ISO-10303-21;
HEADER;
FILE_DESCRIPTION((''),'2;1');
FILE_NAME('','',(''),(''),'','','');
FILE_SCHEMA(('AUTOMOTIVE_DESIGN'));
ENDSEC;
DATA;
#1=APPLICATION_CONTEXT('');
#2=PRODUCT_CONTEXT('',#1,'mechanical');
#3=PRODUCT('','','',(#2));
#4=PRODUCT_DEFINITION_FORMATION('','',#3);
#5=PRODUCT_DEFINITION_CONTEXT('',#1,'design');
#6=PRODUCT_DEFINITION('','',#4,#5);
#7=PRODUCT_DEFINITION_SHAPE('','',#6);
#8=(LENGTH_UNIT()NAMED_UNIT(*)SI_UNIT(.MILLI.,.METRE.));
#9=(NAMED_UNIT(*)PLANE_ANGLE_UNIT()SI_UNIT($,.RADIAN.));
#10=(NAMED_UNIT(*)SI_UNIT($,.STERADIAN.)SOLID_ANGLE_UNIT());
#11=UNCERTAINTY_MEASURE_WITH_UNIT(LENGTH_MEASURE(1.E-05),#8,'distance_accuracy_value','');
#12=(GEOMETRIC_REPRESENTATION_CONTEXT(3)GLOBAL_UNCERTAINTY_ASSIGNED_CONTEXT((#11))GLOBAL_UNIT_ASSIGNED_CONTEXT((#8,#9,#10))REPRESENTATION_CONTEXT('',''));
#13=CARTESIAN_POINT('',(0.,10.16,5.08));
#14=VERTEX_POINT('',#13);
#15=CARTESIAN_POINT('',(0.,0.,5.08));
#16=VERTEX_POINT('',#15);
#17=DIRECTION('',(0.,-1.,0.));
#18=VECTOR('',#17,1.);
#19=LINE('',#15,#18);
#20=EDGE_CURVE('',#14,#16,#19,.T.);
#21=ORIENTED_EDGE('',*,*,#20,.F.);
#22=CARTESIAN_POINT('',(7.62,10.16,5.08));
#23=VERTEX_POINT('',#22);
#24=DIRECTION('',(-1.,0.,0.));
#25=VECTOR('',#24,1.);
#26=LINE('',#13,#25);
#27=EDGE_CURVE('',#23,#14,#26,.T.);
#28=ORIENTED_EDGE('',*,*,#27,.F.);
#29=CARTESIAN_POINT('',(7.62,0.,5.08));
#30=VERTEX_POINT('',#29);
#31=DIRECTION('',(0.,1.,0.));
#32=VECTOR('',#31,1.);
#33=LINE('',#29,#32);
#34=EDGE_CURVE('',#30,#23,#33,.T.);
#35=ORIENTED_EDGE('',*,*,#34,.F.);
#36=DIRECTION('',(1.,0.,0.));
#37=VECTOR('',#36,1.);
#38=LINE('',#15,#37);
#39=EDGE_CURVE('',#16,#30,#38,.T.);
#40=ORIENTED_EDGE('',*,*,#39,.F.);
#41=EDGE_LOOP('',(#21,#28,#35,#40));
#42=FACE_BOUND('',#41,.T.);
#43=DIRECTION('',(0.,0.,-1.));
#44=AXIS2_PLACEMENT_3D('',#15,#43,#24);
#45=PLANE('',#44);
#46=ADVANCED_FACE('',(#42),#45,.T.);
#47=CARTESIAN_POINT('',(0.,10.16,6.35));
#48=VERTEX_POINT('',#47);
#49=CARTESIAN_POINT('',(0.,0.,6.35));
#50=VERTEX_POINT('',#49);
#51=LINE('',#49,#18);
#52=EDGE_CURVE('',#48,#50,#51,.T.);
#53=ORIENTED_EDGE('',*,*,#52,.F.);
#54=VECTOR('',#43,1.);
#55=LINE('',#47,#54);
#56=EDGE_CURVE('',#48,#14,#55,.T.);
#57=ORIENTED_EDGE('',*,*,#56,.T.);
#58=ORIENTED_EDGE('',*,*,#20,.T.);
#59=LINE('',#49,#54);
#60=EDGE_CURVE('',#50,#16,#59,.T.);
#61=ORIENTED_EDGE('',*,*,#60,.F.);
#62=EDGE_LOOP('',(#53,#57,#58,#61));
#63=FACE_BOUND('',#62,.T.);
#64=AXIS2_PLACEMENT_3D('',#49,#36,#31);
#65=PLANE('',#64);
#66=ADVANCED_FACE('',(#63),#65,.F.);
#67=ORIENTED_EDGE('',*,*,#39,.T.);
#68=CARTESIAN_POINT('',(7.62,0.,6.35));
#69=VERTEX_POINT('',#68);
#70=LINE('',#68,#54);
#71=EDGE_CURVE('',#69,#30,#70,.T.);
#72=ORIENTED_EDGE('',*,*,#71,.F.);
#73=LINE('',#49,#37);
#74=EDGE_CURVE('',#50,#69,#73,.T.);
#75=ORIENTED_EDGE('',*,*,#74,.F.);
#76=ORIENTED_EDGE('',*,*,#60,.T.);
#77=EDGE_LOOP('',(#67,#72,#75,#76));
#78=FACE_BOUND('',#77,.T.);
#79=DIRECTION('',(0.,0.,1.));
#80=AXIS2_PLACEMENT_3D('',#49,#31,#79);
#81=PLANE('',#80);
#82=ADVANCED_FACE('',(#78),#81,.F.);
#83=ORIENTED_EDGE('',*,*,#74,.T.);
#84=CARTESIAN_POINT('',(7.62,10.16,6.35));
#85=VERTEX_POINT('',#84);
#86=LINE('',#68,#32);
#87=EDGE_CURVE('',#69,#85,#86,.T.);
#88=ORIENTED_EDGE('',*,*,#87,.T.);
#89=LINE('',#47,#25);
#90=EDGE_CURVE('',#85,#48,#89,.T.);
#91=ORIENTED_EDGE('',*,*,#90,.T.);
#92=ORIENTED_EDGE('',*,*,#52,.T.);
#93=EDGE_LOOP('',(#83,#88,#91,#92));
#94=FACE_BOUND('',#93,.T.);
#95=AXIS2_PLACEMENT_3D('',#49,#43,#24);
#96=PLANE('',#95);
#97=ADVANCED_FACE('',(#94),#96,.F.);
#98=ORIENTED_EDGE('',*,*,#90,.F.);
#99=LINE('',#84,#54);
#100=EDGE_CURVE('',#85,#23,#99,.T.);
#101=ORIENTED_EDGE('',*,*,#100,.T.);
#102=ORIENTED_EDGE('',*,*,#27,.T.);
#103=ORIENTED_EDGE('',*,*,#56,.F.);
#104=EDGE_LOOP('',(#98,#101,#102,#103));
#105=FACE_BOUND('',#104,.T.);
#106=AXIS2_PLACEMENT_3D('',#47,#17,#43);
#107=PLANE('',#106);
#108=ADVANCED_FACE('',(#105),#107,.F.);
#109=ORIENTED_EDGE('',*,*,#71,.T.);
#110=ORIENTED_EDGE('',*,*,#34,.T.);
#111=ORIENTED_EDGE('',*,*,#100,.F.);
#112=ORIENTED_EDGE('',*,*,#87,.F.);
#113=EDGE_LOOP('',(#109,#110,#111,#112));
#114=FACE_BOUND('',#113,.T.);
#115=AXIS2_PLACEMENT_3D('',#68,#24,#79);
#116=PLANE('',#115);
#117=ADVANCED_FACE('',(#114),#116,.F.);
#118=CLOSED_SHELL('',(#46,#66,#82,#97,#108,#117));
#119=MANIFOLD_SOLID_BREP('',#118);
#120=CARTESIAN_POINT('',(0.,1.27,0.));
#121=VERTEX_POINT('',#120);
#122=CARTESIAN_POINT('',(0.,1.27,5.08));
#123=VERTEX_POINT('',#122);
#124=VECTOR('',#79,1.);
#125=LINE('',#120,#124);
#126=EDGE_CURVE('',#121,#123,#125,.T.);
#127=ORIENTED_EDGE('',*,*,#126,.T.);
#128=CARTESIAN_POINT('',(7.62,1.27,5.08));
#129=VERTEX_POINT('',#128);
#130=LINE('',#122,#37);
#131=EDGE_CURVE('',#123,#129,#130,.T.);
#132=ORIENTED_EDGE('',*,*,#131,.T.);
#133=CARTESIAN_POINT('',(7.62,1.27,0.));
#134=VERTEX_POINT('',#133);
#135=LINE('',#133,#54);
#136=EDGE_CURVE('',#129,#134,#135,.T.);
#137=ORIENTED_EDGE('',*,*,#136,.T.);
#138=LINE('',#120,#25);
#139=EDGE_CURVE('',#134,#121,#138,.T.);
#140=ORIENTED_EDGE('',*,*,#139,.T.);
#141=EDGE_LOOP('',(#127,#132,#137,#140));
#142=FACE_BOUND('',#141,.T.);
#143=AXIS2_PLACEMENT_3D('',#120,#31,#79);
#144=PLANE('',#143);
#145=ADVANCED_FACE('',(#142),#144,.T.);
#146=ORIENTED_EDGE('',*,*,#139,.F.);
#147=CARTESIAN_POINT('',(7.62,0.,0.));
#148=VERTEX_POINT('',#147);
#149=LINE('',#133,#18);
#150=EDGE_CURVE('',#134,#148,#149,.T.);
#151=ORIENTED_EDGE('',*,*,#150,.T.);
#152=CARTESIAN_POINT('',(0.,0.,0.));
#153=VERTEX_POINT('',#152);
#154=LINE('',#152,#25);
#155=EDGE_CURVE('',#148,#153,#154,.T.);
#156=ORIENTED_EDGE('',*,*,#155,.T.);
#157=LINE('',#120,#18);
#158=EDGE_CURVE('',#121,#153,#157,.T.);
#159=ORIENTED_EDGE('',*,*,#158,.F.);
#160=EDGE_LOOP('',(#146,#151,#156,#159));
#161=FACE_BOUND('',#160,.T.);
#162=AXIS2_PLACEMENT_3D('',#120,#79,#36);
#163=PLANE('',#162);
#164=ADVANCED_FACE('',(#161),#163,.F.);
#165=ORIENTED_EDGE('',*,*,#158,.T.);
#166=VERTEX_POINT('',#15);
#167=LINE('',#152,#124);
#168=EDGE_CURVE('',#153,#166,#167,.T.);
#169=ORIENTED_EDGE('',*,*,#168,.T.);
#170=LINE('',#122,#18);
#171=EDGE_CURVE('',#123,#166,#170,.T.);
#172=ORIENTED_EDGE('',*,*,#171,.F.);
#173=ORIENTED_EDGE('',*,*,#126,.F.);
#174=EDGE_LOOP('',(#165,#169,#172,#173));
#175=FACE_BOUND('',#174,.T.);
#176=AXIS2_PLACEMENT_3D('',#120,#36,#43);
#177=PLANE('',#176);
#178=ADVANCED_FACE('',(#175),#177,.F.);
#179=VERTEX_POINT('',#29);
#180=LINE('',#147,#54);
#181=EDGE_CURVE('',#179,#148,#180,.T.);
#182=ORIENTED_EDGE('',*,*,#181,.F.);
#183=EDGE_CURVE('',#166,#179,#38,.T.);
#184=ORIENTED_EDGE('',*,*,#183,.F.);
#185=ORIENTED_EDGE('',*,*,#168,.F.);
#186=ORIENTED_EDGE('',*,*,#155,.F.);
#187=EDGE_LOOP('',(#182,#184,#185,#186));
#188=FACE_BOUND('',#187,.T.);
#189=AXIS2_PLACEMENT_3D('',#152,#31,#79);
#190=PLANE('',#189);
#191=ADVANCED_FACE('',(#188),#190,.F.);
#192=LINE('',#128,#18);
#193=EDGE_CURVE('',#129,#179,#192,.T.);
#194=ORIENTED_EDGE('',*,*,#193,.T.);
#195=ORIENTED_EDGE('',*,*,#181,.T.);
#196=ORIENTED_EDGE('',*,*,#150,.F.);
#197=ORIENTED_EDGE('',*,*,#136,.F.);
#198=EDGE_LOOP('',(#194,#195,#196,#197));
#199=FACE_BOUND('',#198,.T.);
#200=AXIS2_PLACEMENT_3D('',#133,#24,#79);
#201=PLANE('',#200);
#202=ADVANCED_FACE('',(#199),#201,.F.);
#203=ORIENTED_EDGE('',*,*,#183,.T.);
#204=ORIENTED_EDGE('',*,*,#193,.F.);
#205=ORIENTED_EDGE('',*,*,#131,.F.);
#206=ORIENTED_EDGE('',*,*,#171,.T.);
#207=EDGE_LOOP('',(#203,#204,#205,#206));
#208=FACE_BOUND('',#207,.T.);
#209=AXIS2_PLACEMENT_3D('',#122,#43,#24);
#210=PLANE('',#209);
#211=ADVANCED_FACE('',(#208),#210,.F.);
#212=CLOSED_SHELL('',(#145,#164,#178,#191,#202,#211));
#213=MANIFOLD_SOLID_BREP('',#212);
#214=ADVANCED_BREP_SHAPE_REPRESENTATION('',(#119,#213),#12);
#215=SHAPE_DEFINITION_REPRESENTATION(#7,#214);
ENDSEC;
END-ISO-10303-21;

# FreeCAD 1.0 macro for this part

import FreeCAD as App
import Part
import Sketcher

V = App.Vector
Q = App.Units.Quantity

doc = App.newDocument("Part")
body = doc.addObject("PartDesign::Body", "Body")

sketch1 = body.newObject("Sketcher::SketchObject", "Sketch")
sketch1.AttachmentSupport = (doc.getObject("XZ_Plane"), [""])
sketch1.MapMode = "FlatFace"
sketch1.addGeometry(Part.LineSegment(V(0, 0, 0), V(0, 5.08, 0)), False)
sketch1.addGeometry(Part.LineSegment(V(0, 5.08, 0), V(7.62, 5.08, 0)), False)
sketch1.addGeometry(Part.LineSegment(V(7.62, 5.08, 0), V(7.62, 0, 0)), False)
sketch1.addGeometry(Part.LineSegment(V(7.62, 0, 0), V(0, 0, 0)), False)
sketch1.addConstraint(Sketcher.Constraint("Coincident", 0, 2, 1, 1))
sketch1.addConstraint(Sketcher.Constraint("Coincident", 1, 2, 2, 1))
sketch1.addConstraint(Sketcher.Constraint("Coincident", 2, 2, 3, 1))
sketch1.addConstraint(Sketcher.Constraint("Coincident", 3, 2, 0, 1))
sketch1.addConstraint(Sketcher.Constraint("Vertical", 0))
sketch1.addConstraint(Sketcher.Constraint("Horizontal", 1))
sketch1.addConstraint(Sketcher.Constraint("Vertical", 2))
sketch1.addConstraint(Sketcher.Constraint("Horizontal", 3))
sketch1.addConstraint(Sketcher.Constraint("Coincident", 3, 2, -1, 1))
sketch1.addConstraint(Sketcher.Constraint("DistanceX", 1, 1, 1, 2, Q("0.3 in")))
sketch1.addConstraint(Sketcher.Constraint("DistanceY", 0, 1, 0, 2, Q("0.2 in")))
pad1 = body.newObject("PartDesign::Pad", "Pad")
pad1.Profile = sketch1
pad1.Length = Q("0.05 in")
pad1.Reversed = True
body2 = doc.addObject("PartDesign::Body", "Body001")

sketch2 = body2.newObject("Sketcher::SketchObject", "Sketch001")
sketch2.AttachmentSupport = (doc.getObject("XY_Plane001"), [""])
sketch2.MapMode = "FlatFace"
sketch2.AttachmentOffset = App.Placement(V(0, 0, 0.2 * 25.4), App.Rotation())
sketch2.addGeometry(Part.LineSegment(V(0, 10.16, 0), V(0, 0, 0)), False)
sketch2.addGeometry(Part.LineSegment(V(0, 0, 0), V(7.62, 0, 0)), False)
sketch2.addGeometry(Part.LineSegment(V(7.62, 0, 0), V(7.62, 10.16, 0)), False)
sketch2.addGeometry(Part.LineSegment(V(7.62, 10.16, 0), V(0, 10.16, 0)), False)
sketch2.addConstraint(Sketcher.Constraint("Coincident", 0, 2, 1, 1))
sketch2.addConstraint(Sketcher.Constraint("Coincident", 1, 2, 2, 1))
sketch2.addConstraint(Sketcher.Constraint("Coincident", 2, 2, 3, 1))
sketch2.addConstraint(Sketcher.Constraint("Coincident", 3, 2, 0, 1))
sketch2.addConstraint(Sketcher.Constraint("Vertical", 0))
sketch2.addConstraint(Sketcher.Constraint("Horizontal", 1))
sketch2.addConstraint(Sketcher.Constraint("Vertical", 2))
sketch2.addConstraint(Sketcher.Constraint("Horizontal", 3))
sketch2.addConstraint(Sketcher.Constraint("Coincident", 0, 2, -1, 1))
sketch2.addConstraint(Sketcher.Constraint("DistanceX", 1, 1, 1, 2, Q("0.3 in")))
sketch2.addConstraint(Sketcher.Constraint("DistanceY", 0, 2, 0, 1, Q("0.4 in")))
pad2 = body2.newObject("PartDesign::Pad", "Pad001")
pad2.Profile = sketch2
pad2.Length = Q("0.05 in")

doc.recompute()
